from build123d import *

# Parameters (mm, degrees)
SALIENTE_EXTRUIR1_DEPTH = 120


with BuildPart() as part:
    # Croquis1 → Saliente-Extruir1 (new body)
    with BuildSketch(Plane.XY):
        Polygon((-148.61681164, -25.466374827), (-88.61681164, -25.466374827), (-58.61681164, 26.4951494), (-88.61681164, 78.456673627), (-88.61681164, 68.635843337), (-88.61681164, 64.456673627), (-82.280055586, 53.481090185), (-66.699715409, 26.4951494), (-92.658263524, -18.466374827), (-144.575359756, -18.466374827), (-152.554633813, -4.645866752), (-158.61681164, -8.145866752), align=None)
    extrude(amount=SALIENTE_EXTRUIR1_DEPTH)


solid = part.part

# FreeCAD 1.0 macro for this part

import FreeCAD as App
import Part
import Sketcher

V = App.Vector
Q = App.Units.Quantity


def add_polygon(sketch, points):
    """Adds a closed chain of lines whose ends are joined by coincident constraints."""
    first, n = sketch.GeometryCount, len(points)
    for a, b in zip(points, points[1:] + points[:1]):
        sketch.addGeometry(Part.LineSegment(App.Vector(*a, 0), App.Vector(*b, 0)), False)
    for i in range(n):
        sketch.addConstraint(Sketcher.Constraint("Coincident", first + i, 2, first + (i + 1) % n, 1))

doc = App.newDocument("Part")
params = doc.addObject("Spreadsheet::Sheet", "Params")
for row, (alias, value) in enumerate([
    ("sketch1_width", "60 mm"),
    ("sketch1_height", "14 mm"),
    ("sketch1_length", "60 mm"),
    ("sketch1_length2", "7 mm"),
    ("sketch1_length3", "20 mm"),
    ("pad1_length", "120 mm"),
], start=1):
    params.set(f"A{row}", alias)
    params.set(f"B{row}", "=" + value)
    params.setAlias(f"B{row}", alias)

body = doc.addObject("PartDesign::Body", "Body")

sketch1 = body.newObject("Sketcher::SketchObject", "Sketch")
sketch1.AttachmentSupport = (doc.getObject("XY_Plane"), [""])
sketch1.MapMode = "FlatFace"
add_polygon(sketch1, [(-149, -25), (-89, -25), (-59, 26), (-89, 78), (-89, 64), (-82, 53), (-67, 26), (-93, -18), (-145, -18), (-153, -5), (-159, -8)])
sketch1.addConstraint(Sketcher.Constraint("Horizontal", 0))
sketch1.addConstraint(Sketcher.Constraint("Vertical", 3))
sketch1.addConstraint(Sketcher.Constraint("Horizontal", 7))
sketch1.addConstraint(Sketcher.Constraint("Parallel", 2, 4))
sketch1.addConstraint(Sketcher.Constraint("Parallel", 4, 5))
sketch1.addConstraint(Sketcher.Constraint("Parallel", 1, 6))
sketch1.addConstraint(Sketcher.Constraint("Parallel", 5, 8))
sketch1.addConstraint(Sketcher.Constraint("Perpendicular", 8, 9))
sketch1.addConstraint(Sketcher.Constraint("Perpendicular", 9, 10))
sketch1.addConstraint(Sketcher.Constraint("Horizontal", 1, 2, 5, 2))
sketch1.addConstraint(Sketcher.Constraint("Vertical", 0, 2, 2, 2))
sketch1.addConstraint(Sketcher.Constraint("Equal", 1, 2))
sketch1.addConstraint(Sketcher.Constraint("DistanceX", 0, 1, 0, 2, Q("60 mm")))
sketch1.addConstraint(Sketcher.Constraint("DistanceY", 3, 2, 3, 1, Q("14 mm")))
sketch1.addConstraint(Sketcher.Constraint("Angle", 1, Q("60 deg")))
sketch1.addConstraint(Sketcher.Constraint("Distance", 1, Q("60 mm")))
sketch1.addConstraint(Sketcher.Constraint("Distance", 9, Q("7 mm")))
sketch1.addConstraint(Sketcher.Constraint("Distance", 10, Q("20 mm")))
sketch1.addConstraint(Sketcher.Constraint("DistanceY", 0, 2, 6, 2, Q("7 mm")))
sketch1.addConstraint(Sketcher.Constraint("Distance", 5, Q("31.16068 mm")))
sketch1.addConstraint(Sketcher.Constraint("DistanceX", 0, 2, -1, 1, Q("88.616812 mm")))
sketch1.addConstraint(Sketcher.Constraint("DistanceY", -1, 1, 1, 2, Q("26.495149 mm")))
sketch1.setExpression("Constraints[23]", "Params.sketch1_width")
sketch1.setExpression("Constraints[24]", "Params.sketch1_height")
sketch1.setExpression("Constraints[26]", "Params.sketch1_length")
sketch1.setExpression("Constraints[27]", "Params.sketch1_length2")
sketch1.setExpression("Constraints[28]", "Params.sketch1_length3")
pad1 = body.newObject("PartDesign::Pad", "Pad")
pad1.Profile = sketch1
pad1.setExpression("Length", "Params.pad1_length")

doc.recompute()
